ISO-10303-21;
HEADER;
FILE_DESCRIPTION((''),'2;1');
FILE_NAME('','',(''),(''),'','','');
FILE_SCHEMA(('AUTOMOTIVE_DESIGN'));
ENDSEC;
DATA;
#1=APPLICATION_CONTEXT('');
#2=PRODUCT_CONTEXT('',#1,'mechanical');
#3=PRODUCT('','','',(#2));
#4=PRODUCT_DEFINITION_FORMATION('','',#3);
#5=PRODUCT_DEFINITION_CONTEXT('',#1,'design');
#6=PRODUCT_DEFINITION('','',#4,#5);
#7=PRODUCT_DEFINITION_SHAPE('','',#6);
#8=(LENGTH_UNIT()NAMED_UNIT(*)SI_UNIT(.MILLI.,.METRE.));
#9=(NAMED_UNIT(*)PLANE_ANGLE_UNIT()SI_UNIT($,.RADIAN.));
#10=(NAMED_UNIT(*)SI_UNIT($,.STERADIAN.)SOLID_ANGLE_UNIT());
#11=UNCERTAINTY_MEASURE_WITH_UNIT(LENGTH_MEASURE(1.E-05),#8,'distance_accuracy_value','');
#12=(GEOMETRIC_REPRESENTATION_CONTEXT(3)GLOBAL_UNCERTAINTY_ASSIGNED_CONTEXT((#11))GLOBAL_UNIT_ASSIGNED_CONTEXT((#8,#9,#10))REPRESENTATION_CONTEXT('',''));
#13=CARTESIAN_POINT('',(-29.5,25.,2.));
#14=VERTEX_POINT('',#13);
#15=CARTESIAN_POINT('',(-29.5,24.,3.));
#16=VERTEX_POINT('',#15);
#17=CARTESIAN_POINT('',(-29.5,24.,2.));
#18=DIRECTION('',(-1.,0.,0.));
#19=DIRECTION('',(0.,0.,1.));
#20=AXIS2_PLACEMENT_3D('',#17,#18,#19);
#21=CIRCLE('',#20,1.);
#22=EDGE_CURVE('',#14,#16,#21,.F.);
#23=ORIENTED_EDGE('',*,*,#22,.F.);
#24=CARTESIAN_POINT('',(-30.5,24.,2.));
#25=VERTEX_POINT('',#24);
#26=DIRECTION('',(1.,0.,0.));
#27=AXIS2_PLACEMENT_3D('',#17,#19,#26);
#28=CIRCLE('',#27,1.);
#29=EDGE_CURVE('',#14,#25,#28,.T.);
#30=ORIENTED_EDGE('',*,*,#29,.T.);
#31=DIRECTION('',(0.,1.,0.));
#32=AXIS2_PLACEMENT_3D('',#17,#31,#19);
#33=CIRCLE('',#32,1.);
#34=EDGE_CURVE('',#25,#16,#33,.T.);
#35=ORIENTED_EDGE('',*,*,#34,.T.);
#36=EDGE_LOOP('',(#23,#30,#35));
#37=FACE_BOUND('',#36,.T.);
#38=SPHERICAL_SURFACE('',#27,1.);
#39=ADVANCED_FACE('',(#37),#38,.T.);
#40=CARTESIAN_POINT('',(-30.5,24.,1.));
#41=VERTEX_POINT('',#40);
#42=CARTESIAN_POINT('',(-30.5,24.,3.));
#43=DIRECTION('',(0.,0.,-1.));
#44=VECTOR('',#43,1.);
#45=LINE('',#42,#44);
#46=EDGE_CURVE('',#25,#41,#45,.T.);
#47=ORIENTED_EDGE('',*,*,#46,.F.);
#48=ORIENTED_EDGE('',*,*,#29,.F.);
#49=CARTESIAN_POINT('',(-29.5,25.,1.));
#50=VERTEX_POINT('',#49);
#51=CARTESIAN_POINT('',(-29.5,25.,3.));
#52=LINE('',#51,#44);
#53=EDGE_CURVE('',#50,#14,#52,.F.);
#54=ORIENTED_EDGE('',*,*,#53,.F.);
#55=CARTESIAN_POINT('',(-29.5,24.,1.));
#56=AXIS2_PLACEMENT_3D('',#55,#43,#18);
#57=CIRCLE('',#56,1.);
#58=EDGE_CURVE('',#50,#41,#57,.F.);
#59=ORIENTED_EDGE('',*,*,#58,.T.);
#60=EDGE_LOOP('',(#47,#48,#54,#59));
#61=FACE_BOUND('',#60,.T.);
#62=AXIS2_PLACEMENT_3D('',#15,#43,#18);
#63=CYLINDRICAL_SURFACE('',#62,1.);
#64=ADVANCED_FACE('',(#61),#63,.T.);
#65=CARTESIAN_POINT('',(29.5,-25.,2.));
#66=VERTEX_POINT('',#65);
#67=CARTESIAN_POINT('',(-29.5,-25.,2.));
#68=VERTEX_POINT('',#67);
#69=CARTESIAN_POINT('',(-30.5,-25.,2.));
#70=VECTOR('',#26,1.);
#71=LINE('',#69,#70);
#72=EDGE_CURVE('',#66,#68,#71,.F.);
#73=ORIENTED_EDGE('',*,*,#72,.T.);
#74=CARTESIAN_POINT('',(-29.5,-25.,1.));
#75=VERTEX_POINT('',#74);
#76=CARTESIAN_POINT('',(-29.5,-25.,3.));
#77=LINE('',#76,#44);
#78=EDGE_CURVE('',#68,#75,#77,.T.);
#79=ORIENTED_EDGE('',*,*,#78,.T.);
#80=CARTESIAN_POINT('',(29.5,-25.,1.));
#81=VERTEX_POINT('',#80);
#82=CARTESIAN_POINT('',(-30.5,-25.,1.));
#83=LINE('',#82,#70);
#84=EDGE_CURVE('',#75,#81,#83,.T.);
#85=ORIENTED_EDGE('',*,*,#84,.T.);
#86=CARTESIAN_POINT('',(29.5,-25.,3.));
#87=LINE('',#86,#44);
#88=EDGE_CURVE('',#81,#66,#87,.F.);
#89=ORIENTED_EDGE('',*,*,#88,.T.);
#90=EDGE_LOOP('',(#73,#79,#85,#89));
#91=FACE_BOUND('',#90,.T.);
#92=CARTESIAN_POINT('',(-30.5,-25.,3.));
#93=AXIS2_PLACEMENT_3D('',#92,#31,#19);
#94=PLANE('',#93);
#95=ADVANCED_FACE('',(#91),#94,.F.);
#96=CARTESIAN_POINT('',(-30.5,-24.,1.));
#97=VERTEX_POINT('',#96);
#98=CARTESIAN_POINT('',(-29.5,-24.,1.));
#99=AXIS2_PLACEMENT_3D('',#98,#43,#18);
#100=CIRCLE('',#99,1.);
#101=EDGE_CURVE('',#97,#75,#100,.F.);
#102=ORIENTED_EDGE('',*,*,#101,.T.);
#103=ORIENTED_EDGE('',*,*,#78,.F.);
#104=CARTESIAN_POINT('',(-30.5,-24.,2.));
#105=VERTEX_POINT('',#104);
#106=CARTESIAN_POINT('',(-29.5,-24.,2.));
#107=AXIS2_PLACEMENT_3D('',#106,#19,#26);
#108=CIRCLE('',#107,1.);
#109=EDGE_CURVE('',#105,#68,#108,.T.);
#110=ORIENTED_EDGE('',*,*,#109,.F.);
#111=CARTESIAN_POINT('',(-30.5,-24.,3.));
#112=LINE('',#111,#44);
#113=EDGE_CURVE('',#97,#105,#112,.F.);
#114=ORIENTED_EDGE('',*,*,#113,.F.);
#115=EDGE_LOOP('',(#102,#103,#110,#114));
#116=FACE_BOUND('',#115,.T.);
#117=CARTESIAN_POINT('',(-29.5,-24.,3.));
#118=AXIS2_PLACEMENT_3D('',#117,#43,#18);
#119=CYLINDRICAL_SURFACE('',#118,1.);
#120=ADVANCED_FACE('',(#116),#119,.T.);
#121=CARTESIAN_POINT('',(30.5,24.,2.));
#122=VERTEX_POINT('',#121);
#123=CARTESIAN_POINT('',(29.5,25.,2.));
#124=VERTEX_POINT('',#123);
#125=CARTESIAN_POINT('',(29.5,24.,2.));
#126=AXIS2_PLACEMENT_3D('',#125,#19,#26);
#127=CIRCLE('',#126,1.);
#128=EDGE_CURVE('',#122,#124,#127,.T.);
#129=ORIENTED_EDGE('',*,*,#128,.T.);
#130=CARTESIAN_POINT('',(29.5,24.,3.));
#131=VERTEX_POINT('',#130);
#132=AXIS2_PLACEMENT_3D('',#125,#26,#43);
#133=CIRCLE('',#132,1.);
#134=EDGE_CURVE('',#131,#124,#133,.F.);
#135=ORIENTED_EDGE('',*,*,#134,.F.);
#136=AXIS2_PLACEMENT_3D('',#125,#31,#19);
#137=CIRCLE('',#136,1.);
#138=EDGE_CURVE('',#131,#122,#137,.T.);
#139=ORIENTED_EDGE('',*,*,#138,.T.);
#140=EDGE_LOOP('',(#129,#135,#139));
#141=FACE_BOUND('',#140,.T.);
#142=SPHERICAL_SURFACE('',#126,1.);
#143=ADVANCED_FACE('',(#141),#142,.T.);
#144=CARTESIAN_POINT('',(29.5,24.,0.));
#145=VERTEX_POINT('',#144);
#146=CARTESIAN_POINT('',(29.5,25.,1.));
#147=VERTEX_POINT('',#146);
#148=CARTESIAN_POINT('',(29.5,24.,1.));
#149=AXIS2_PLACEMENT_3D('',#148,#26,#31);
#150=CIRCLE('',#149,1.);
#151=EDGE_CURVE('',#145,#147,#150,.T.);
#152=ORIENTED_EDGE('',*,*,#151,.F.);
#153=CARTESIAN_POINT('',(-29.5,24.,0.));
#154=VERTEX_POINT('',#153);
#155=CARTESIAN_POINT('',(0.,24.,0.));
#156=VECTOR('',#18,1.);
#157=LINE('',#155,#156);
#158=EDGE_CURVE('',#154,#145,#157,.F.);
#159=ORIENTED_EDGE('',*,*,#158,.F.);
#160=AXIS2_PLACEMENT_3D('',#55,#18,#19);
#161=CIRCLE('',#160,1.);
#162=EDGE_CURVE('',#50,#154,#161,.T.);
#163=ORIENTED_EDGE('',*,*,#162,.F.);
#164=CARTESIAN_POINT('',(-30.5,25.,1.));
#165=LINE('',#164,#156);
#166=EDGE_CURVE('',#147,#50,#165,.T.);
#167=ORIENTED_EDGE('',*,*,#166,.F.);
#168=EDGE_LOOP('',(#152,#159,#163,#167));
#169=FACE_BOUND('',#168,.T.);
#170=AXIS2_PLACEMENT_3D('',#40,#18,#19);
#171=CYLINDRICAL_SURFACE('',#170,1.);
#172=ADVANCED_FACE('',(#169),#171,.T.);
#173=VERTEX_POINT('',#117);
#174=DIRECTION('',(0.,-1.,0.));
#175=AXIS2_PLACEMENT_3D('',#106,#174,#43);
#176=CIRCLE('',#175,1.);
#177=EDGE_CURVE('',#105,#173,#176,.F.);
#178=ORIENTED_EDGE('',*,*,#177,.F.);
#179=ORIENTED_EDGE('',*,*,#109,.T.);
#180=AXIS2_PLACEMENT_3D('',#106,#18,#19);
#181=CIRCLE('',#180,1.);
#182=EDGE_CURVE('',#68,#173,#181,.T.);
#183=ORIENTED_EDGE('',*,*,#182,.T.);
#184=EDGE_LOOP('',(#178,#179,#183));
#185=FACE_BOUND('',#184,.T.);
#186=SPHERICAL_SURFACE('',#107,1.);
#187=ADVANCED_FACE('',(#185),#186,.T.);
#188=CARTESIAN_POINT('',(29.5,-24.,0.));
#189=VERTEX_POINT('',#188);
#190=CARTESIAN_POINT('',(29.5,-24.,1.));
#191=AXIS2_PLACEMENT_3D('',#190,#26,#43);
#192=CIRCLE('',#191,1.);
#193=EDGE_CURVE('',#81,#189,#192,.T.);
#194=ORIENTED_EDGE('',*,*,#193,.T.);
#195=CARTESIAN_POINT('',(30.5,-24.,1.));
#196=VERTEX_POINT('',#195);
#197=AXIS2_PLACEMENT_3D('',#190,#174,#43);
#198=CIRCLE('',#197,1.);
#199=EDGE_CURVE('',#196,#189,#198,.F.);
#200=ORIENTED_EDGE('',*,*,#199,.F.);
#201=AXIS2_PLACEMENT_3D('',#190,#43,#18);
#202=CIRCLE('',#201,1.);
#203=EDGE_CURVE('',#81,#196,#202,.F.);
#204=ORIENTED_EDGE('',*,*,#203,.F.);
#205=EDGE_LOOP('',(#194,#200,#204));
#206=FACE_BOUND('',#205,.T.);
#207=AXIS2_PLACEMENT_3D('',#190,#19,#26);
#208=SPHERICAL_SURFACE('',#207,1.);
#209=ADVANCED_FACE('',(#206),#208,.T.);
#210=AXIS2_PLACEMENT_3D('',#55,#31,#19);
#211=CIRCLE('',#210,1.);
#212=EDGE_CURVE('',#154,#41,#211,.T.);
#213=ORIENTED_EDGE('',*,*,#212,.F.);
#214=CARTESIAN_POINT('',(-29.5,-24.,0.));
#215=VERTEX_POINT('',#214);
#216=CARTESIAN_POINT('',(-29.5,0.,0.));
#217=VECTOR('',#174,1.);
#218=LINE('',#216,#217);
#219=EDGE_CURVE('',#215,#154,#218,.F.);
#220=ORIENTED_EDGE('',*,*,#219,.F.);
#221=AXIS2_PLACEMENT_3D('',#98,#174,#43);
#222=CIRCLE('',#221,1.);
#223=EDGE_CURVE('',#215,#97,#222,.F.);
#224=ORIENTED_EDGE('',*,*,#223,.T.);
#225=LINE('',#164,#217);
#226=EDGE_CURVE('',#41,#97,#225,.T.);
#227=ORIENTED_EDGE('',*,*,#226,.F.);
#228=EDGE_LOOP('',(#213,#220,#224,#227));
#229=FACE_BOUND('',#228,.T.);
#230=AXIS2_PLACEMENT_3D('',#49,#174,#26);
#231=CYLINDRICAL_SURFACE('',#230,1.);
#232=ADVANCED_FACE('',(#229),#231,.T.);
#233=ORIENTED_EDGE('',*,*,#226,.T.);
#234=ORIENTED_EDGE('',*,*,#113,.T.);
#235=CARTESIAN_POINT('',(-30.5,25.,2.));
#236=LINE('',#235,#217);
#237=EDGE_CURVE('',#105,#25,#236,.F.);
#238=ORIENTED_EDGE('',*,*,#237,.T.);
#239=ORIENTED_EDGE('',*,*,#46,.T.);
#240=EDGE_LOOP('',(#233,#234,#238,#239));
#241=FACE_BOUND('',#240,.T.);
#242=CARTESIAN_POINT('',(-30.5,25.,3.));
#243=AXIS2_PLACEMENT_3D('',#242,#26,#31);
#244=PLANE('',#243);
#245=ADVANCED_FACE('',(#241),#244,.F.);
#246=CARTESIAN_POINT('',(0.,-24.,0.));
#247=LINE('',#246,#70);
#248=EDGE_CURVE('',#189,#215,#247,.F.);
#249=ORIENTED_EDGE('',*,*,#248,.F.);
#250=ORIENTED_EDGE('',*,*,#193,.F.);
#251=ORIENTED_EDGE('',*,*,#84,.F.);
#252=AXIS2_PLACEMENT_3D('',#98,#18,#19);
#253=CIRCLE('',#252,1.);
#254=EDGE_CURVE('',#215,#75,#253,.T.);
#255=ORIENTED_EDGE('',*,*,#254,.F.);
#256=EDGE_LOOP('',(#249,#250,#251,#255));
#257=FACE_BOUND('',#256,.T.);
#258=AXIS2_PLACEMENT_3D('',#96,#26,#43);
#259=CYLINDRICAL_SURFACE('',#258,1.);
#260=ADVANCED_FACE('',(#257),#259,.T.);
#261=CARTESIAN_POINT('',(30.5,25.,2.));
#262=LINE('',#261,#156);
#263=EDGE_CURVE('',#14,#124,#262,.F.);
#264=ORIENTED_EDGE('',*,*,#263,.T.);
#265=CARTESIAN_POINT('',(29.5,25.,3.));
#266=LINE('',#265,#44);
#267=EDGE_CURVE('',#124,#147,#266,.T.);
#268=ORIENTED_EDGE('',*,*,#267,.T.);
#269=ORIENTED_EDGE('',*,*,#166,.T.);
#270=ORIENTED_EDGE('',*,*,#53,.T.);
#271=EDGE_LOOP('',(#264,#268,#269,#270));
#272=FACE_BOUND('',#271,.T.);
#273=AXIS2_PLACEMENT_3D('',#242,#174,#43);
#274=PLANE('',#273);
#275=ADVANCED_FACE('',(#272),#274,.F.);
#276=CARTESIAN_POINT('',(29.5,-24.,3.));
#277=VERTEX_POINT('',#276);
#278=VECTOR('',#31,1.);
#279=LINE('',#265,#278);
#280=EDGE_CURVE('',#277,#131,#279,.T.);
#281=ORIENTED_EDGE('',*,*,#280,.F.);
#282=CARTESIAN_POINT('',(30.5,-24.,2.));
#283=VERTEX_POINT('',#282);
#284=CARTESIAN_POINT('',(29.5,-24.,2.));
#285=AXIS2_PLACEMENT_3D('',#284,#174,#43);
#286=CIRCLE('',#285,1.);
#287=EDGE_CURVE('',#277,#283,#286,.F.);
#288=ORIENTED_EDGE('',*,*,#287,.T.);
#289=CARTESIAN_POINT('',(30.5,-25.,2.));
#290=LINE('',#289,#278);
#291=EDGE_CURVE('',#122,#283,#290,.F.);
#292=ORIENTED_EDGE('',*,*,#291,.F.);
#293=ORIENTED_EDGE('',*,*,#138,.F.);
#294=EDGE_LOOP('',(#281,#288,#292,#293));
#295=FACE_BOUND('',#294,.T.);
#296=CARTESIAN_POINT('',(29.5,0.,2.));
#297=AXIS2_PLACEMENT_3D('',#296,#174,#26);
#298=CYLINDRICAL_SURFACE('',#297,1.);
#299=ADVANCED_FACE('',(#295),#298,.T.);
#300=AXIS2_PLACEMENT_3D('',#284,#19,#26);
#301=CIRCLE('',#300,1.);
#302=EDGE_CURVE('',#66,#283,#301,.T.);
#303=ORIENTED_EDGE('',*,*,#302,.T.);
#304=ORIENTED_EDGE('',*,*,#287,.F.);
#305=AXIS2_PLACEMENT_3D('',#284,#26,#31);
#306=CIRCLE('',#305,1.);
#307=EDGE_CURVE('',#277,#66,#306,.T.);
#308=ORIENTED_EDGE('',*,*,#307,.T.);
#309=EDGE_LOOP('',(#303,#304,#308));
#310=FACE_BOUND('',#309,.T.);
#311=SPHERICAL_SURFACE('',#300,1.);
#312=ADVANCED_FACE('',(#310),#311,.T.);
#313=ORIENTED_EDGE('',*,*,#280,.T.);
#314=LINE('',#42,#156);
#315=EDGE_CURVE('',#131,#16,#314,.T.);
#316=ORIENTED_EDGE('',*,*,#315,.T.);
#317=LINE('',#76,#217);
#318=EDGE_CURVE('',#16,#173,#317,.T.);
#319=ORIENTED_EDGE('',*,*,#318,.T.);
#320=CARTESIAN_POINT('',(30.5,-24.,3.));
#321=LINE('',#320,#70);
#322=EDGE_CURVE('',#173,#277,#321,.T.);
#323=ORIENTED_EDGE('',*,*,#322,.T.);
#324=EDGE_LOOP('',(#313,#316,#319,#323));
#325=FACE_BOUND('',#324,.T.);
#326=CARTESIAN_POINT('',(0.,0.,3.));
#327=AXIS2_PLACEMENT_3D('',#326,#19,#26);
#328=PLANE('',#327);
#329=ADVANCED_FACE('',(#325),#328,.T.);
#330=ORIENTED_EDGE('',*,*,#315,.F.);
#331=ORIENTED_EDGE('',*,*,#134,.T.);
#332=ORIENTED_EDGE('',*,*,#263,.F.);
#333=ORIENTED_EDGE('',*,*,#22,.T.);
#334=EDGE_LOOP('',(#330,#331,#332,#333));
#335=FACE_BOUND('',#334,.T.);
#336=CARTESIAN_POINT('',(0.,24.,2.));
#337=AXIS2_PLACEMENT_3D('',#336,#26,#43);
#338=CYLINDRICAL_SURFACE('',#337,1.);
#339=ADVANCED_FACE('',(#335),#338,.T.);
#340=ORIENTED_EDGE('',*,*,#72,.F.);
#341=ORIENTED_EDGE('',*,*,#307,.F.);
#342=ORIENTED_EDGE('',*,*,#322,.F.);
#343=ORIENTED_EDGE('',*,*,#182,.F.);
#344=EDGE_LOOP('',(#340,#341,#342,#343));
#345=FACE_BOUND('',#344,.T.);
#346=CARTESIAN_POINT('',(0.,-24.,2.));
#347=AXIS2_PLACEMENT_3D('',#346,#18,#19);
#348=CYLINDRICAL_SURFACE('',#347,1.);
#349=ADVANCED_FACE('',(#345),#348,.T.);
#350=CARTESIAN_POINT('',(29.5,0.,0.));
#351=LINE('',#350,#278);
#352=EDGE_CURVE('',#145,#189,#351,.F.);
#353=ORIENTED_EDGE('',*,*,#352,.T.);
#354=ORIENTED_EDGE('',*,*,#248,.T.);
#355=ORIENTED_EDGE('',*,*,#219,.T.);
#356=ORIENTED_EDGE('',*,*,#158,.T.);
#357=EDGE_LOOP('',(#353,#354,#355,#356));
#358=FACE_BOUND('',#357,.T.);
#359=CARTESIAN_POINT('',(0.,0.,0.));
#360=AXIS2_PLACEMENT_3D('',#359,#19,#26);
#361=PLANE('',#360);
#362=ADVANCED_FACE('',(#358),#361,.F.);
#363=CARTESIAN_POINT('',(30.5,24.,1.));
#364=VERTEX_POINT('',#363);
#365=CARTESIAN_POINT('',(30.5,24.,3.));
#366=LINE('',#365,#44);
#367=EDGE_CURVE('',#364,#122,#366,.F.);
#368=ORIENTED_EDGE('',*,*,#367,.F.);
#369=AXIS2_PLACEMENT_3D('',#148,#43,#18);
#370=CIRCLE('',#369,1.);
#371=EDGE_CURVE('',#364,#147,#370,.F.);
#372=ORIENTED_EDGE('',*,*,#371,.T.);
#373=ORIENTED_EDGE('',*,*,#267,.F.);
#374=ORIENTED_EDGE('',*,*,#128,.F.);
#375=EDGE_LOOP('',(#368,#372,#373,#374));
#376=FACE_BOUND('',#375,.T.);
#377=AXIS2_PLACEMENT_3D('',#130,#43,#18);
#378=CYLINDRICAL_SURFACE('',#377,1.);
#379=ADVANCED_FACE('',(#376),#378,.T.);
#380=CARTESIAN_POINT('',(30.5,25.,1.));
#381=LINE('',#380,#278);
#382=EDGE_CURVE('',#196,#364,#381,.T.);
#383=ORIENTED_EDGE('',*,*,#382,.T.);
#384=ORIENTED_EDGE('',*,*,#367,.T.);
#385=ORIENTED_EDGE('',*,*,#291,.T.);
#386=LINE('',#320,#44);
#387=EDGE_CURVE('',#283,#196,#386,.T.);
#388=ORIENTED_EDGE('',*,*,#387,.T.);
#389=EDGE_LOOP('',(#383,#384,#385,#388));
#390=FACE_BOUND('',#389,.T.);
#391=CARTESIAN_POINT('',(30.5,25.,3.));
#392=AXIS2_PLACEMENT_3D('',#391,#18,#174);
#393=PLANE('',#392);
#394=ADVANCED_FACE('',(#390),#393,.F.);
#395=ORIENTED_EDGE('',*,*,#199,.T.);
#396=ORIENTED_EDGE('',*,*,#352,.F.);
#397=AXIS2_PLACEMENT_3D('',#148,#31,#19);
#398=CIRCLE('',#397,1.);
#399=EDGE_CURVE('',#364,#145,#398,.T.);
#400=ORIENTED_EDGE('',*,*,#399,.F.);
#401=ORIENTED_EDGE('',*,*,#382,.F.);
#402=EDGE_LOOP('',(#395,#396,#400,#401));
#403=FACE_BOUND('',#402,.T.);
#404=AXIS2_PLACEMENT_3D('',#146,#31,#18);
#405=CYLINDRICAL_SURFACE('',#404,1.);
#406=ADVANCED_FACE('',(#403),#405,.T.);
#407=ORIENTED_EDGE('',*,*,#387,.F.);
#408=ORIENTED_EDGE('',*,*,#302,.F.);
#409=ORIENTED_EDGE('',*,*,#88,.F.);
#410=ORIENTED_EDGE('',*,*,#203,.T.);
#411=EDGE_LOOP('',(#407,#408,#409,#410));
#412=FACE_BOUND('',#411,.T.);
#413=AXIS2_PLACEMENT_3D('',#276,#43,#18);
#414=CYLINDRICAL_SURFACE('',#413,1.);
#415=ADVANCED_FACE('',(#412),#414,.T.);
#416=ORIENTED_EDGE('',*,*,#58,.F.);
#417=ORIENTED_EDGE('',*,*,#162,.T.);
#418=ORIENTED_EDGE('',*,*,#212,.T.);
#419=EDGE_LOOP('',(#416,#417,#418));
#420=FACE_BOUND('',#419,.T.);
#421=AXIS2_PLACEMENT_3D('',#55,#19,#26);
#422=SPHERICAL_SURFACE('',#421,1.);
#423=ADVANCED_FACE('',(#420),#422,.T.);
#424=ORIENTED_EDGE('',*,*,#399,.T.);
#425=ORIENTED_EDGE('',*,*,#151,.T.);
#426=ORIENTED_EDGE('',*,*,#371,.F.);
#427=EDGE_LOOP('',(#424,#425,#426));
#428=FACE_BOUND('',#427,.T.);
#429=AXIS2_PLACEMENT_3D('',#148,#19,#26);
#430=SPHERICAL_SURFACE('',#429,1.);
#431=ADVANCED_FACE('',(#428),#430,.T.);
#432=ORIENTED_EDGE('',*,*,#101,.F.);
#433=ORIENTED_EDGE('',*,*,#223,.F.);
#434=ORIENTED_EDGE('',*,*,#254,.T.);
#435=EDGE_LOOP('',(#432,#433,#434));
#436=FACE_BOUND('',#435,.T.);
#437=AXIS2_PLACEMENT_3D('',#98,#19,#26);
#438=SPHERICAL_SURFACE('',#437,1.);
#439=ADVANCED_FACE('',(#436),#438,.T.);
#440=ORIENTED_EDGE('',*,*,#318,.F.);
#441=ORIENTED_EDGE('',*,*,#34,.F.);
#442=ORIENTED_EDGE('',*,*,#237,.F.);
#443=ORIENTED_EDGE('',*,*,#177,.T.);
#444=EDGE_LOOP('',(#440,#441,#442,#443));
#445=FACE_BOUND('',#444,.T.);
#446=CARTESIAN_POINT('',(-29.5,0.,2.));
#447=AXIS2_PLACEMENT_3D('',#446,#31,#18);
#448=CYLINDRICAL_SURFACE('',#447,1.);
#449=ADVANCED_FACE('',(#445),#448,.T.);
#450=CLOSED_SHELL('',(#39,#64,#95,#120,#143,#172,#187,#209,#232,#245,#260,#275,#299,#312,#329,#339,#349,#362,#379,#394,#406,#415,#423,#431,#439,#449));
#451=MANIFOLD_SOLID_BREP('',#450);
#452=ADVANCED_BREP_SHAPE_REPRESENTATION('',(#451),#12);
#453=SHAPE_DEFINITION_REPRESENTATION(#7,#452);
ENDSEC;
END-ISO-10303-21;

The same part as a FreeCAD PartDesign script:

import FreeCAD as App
import Part
import Sketcher
from FreeCAD import Vector

doc = App.newDocument("Part")
params = doc.addObject("Spreadsheet::Sheet", "Params")
for row, (alias, value) in enumerate([
    ("sketch1_width", "61 mm"),
    ("sketch1_height", "50 mm"),
    ("pad1_length", "3 mm"),
    ("fillet_radius", "1 mm"),
], start=1):
    params.set(f"A{row}", alias)
    params.set(f"B{row}", "=" + value)
    params.setAlias(f"B{row}", alias)

body = doc.addObject("PartDesign::Body", "Body")

sketch1 = body.newObject("Sketcher::SketchObject", "Sketch")
sketch1.AttachmentSupport = (doc.getObject("XY_Plane"), [""])
sketch1.MapMode = "FlatFace"
sketch1.addGeometry(Part.LineSegment(Vector(-30, 25, 0), Vector(-30, -25, 0)), False)
sketch1.addGeometry(Part.LineSegment(Vector(-30, -25, 0), Vector(30, -25, 0)), False)
sketch1.addGeometry(Part.LineSegment(Vector(30, -25, 0), Vector(30, 25, 0)), False)
sketch1.addGeometry(Part.LineSegment(Vector(30, 25, 0), Vector(-30, 25, 0)), False)
sketch1.addConstraint(Sketcher.Constraint("Coincident", 0, 2, 1, 1))
sketch1.addConstraint(Sketcher.Constraint("Coincident", 1, 2, 2, 1))
sketch1.addConstraint(Sketcher.Constraint("Coincident", 2, 2, 3, 1))
sketch1.addConstraint(Sketcher.Constraint("Coincident", 3, 2, 0, 1))
sketch1.addConstraint(Sketcher.Constraint("Vertical", 0))
sketch1.addConstraint(Sketcher.Constraint("Horizontal", 1))
sketch1.addConstraint(Sketcher.Constraint("Vertical", 2))
sketch1.addConstraint(Sketcher.Constraint("Horizontal", 3))
sketch1.addConstraint(Sketcher.Constraint("Symmetric", 0, 2, 2, 2, -1, 1))
sketch1.addConstraint(Sketcher.Constraint("DistanceX", 1, 1, 1, 2, 61.0))
sketch1.addConstraint(Sketcher.Constraint("DistanceY", 0, 2, 0, 1, 50.0))
sketch1.setExpression("Constraints[9]", "Params.sketch1_width")
sketch1.setExpression("Constraints[10]", "Params.sketch1_height")
pad1 = body.newObject("PartDesign::Pad", "Pad")
pad1.Profile = sketch1
pad1.setExpression("Length", "Params.pad1_length")
doc.recompute()

fillet = body.newObject("PartDesign::Fillet", "Fillet")
fillet.Base = (pad1, ["Edge1"])
fillet.UseAllEdges = True
fillet.setExpression("Radius", "Params.fillet_radius")

doc.recompute()
